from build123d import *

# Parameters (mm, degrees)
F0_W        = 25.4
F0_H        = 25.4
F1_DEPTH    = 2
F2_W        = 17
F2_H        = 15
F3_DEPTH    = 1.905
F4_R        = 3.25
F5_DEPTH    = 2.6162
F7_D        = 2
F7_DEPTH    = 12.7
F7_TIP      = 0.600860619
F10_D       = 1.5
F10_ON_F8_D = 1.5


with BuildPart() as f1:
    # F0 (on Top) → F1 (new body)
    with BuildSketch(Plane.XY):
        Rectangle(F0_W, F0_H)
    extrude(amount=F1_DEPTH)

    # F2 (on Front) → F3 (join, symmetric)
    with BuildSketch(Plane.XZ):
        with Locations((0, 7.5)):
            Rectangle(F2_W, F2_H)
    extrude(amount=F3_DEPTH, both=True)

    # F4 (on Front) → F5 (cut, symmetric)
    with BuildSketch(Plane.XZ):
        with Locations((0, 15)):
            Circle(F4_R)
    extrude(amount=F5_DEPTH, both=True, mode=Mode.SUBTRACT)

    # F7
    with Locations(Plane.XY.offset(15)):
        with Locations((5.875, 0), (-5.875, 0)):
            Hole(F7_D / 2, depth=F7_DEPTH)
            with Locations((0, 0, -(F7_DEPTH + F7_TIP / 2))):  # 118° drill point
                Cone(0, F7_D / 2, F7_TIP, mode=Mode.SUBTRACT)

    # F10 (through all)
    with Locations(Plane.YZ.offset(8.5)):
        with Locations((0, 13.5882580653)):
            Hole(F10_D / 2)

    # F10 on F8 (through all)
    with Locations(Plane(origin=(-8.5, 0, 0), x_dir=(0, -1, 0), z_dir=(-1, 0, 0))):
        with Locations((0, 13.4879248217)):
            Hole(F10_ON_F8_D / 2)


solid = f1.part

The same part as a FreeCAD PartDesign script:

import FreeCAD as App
import Part
import Sketcher


def add_polygon(sketch, points):
    """Adds a closed chain of lines whose ends are joined by coincident constraints."""
    first, n = sketch.GeometryCount, len(points)
    for a, b in zip(points, points[1:] + points[:1]):
        sketch.addGeometry(Part.LineSegment(App.Vector(*a, 0), App.Vector(*b, 0)), False)
    for i in range(n):
        sketch.addConstraint(Sketcher.Constraint("Coincident", first + i, 2, first + (i + 1) % n, 1))

doc = App.newDocument("Part")
body = doc.addObject("PartDesign::Body", "Body")

# Sketch on XY plane
sketch1 = body.newObject("Sketcher::SketchObject", "Sketch")
sketch1.AttachmentSupport = (doc.getObject("XY_Plane"), [""])
sketch1.MapMode = "FlatFace"
add_polygon(sketch1, [(-13, 13), (-13, -13), (13, -13), (13, 13)])  # lines 0-3
sketch1.addConstraint(Sketcher.Constraint("Vertical", 0))
sketch1.addConstraint(Sketcher.Constraint("Horizontal", 1))
sketch1.addConstraint(Sketcher.Constraint("Vertical", 2))
sketch1.addConstraint(Sketcher.Constraint("Horizontal", 3))
sketch1.addConstraint(Sketcher.Constraint("Symmetric", 0, 2, 2, 2, -1, 1))
sketch1.addConstraint(Sketcher.Constraint("Equal", 3, 0))
sketch1.addConstraint(Sketcher.Constraint("DistanceX", 1, 1, 1, 2, 25.4))
pad1 = body.newObject("PartDesign::Pad", "Pad")
pad1.Profile = sketch1
pad1.Length = 2

# Sketch on XZ plane
sketch2 = body.newObject("Sketcher::SketchObject", "Sketch001")
sketch2.AttachmentSupport = (doc.getObject("XZ_Plane"), [""])
sketch2.MapMode = "FlatFace"
add_polygon(sketch2, [(-8, 15), (-8, 0), (8, 0), (8, 15)])  # lines 0-3
sketch2.addConstraint(Sketcher.Constraint("Vertical", 0))
sketch2.addConstraint(Sketcher.Constraint("Horizontal", 1))
sketch2.addConstraint(Sketcher.Constraint("Vertical", 2))
sketch2.addConstraint(Sketcher.Constraint("Horizontal", 3))
sketch2.addConstraint(Sketcher.Constraint("Symmetric", 0, 2, 1, 2, -1, 1))
sketch2.addConstraint(Sketcher.Constraint("DistanceX", 1, 1, 1, 2, 17.0))
sketch2.addConstraint(Sketcher.Constraint("DistanceY", 0, 2, 0, 1, 15.0))
pad2 = body.newObject("PartDesign::Pad", "Pad001")
pad2.Profile = sketch2
pad2.Length = 3.81
pad2.Midplane = True

# Sketch on XZ plane
sketch3 = body.newObject("Sketcher::SketchObject", "Sketch002")
sketch3.AttachmentSupport = (doc.getObject("XZ_Plane"), [""])
sketch3.MapMode = "FlatFace"
sketch3.addGeometry(Part.Circle(App.Vector(0, 15, 0), App.Vector(0, 0, 1), 3.2), False)
sketch3.addConstraint(Sketcher.Constraint("PointOnObject", 0, 3, -2))
sketch3.addConstraint(Sketcher.Constraint("Diameter", 0, 6.5))
sketch3.addConstraint(Sketcher.Constraint("DistanceY", -1, 1, 0, 3, 15.0))
pocket1 = body.newObject("PartDesign::Pocket", "Pocket")
pocket1.Profile = sketch3
pocket1.Length = 5.2324
pocket1.Midplane = True

# Sketch on XY plane
sketch4 = body.newObject("Sketcher::SketchObject", "Sketch003")
sketch4.AttachmentSupport = (doc.getObject("XY_Plane"), [""])
sketch4.MapMode = "FlatFace"
sketch4.AttachmentOffset = App.Placement(App.Vector(0, 0, 15), App.Rotation())
sketch4.addGeometry(Part.Circle(App.Vector(5.9, 0, 0), App.Vector(0, 0, 1), 1), False)
sketch4.addGeometry(Part.Circle(App.Vector(-5.9, 0, 0), App.Vector(0, 0, 1), 1), False)
sketch4.addConstraint(Sketcher.Constraint("Equal", 0, 1))
sketch4.addConstraint(Sketcher.Constraint("Symmetric", 0, 3, 1, 3, -1, 1))
sketch4.addConstraint(Sketcher.Constraint("PointOnObject", 0, 3, -1))
sketch4.addConstraint(Sketcher.Constraint("Diameter", 0, 2.0))
sketch4.addConstraint(Sketcher.Constraint("DistanceX", 1, 3, 0, 3, 11.75))
doc.recompute()
hole = body.newObject("PartDesign::Hole", "Hole")
hole.Profile = sketch4
hole.ThreadType = "None"
hole.Diameter = 2
hole.DepthType = "Dimension"
hole.Depth = 12.7
hole.DrillPoint = "Angled"
hole.DrillPointAngle = 118

# Sketch on YZ plane
sketch5 = body.newObject("Sketcher::SketchObject", "Sketch004")
sketch5.AttachmentSupport = (doc.getObject("YZ_Plane"), [""])
sketch5.MapMode = "FlatFace"
sketch5.AttachmentOffset = App.Placement(App.Vector(0, 0, 8.5), App.Rotation())
sketch5.addGeometry(Part.Circle(App.Vector(0, 13.6, 0), App.Vector(0, 0, 1), 0.8), False)
sketch5.addConstraint(Sketcher.Constraint("PointOnObject", 0, 3, -2))
sketch5.addConstraint(Sketcher.Constraint("Diameter", 0, 1.5))
sketch5.addConstraint(Sketcher.Constraint("DistanceY", -1, 1, 0, 3, 13.588258))
doc.recompute()
hole2 = body.newObject("PartDesign::Hole", "Hole001")
hole2.Profile = sketch5
hole2.ThreadType = "None"
hole2.Diameter = 1.5
hole2.DepthType = "ThroughAll"

# Sketch on YZ plane
sketch6 = body.newObject("Sketcher::SketchObject", "Sketch005")
sketch6.AttachmentSupport = (doc.getObject("YZ_Plane"), [""])
sketch6.MapMode = "FlatFace"
sketch6.AttachmentOffset = App.Placement(App.Vector(0, 0, -8.5), App.Rotation())
sketch6.addGeometry(Part.Circle(App.Vector(0, 13.5, 0), App.Vector(0, 0, 1), 0.8), False)
sketch6.addConstraint(Sketcher.Constraint("PointOnObject", 0, 3, -2))
sketch6.addConstraint(Sketcher.Constraint("Diameter", 0, 1.5))
sketch6.addConstraint(Sketcher.Constraint("DistanceY", -1, 1, 0, 3, 13.487925))
doc.recompute()
hole3 = body.newObject("PartDesign::Hole", "Hole002")
hole3.Profile = sketch6
hole3.ThreadType = "None"
hole3.Diameter = 1.5
hole3.DepthType = "ThroughAll"
hole3.Reversed = True

doc.recompute()
